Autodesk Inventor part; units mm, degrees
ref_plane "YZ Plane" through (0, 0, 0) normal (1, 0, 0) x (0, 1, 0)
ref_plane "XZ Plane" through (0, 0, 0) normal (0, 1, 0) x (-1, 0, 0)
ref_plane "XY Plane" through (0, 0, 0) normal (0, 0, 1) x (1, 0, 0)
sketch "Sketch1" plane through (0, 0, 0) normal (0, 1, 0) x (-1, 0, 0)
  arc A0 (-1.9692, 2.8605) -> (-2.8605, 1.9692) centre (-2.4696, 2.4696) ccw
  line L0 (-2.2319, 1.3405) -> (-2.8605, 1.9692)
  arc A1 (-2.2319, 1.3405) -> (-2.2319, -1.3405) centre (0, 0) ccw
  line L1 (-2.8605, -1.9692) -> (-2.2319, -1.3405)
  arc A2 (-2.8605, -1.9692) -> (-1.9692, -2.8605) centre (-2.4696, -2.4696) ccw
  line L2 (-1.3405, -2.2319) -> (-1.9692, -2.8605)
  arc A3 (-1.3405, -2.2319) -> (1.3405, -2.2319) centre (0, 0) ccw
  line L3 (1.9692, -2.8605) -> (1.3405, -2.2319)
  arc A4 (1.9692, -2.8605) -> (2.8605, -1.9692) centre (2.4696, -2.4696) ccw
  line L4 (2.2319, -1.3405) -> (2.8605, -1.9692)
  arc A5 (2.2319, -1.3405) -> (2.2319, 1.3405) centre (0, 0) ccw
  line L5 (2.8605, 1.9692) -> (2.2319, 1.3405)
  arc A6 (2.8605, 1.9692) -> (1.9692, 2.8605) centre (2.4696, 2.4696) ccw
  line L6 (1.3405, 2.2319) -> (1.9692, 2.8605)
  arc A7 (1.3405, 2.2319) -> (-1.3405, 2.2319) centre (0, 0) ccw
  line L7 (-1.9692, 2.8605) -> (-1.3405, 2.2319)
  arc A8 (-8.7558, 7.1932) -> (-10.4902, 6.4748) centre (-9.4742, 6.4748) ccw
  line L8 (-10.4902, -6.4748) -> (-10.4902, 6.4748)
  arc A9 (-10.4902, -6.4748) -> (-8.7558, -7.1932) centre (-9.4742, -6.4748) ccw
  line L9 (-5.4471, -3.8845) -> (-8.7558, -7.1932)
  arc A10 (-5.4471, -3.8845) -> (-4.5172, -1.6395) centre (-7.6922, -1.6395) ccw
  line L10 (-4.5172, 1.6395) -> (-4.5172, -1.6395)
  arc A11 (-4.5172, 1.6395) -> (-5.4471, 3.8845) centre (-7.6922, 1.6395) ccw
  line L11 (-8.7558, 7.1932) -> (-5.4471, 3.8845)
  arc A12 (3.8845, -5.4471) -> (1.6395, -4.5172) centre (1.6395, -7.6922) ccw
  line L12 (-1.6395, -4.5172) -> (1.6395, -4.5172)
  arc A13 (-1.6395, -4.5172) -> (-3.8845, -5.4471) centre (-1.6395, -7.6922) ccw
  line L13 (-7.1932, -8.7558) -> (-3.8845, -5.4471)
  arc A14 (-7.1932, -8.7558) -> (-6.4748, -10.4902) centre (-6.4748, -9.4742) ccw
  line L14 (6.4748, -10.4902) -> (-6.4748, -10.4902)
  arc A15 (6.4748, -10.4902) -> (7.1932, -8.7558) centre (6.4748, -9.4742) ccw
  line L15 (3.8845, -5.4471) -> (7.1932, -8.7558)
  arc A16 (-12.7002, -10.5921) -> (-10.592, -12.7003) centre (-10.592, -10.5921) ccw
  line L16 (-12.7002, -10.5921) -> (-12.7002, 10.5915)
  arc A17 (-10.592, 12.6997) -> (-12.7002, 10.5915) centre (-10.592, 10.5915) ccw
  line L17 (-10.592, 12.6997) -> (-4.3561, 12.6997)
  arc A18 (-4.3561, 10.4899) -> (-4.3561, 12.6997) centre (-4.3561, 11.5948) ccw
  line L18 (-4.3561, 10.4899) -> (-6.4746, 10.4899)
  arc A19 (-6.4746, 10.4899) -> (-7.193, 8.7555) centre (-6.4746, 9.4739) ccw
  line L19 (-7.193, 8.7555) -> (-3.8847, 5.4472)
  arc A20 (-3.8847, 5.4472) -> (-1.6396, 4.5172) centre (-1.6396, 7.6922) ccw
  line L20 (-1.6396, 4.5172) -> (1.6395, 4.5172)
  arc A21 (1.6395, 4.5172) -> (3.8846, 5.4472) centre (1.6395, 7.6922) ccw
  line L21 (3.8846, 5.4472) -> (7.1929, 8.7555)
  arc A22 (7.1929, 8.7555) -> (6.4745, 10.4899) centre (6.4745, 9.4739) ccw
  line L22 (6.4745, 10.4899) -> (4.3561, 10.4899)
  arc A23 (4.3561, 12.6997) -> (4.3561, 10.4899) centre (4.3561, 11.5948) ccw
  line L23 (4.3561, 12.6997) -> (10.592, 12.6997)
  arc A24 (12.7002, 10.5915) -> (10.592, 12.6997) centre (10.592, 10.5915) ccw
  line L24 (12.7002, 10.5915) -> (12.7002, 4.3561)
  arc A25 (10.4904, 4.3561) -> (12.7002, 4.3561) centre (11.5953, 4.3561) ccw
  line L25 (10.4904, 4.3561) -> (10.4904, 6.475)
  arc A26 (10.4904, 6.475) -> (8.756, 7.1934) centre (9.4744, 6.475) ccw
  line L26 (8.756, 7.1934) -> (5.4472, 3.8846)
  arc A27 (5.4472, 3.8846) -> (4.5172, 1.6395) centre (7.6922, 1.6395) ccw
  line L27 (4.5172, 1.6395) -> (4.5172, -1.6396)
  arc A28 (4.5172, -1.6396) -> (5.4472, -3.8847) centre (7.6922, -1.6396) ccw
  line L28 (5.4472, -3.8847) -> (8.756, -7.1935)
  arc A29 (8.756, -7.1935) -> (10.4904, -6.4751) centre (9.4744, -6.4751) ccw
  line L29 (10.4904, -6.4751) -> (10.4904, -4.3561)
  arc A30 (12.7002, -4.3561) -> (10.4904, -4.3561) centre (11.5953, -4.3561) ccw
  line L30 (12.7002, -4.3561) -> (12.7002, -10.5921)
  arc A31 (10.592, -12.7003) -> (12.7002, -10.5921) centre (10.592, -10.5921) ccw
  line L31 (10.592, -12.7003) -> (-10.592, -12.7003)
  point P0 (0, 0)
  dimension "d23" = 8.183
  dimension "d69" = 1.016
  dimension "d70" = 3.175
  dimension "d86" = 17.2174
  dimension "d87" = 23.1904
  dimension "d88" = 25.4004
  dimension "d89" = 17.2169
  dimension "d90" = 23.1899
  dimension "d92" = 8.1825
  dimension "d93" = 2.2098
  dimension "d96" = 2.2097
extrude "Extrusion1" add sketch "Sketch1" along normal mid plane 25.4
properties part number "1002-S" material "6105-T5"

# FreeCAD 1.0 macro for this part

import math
import FreeCAD as App
import Part
import Sketcher

V = App.Vector
Q = App.Units.Quantity

doc = App.newDocument("Part")
body = doc.addObject("PartDesign::Body", "Body")

sketch1 = body.newObject("Sketcher::SketchObject", "Sketch")
sketch1.AttachmentSupport = (doc.getObject("XZ_Plane"), [""])
sketch1.MapMode = "FlatFace"
sketch1.addGeometry([
    Part.LineSegment(V(12.7002, 10.5915, 0), V(12.7002, -10.5921, 0)),
    Part.ArcOfCircle(Part.Circle(V(10.592, -10.5921, 0), V(0, 0, 1), 2.1082), math.radians(-90), math.radians(0)),
    Part.LineSegment(V(10.592, -12.7003, 0), V(-10.592, -12.7003, 0)),
    Part.ArcOfCircle(Part.Circle(V(-10.592, -10.5921, 0), V(0, 0, 1), 2.1082), math.radians(180), math.radians(270)),
    Part.LineSegment(V(-12.7002, -10.5921, 0), V(-12.7002, -4.3561, 0)),
    Part.ArcOfCircle(Part.Circle(V(-11.5953, -4.3561, 0), V(0, 0, 1), 1.1049), math.radians(0), math.radians(180)),
    Part.LineSegment(V(-10.4904, -4.3561, 0), V(-10.4904, -6.4751, 0)),
    Part.ArcOfCircle(Part.Circle(V(-9.4744, -6.4751, 0), V(0, 0, 1), 1.015971), math.radians(180), math.radians(315)),
    Part.LineSegment(V(-8.756, -7.1935, 0), V(-5.4472, -3.8847, 0)),
    Part.ArcOfCircle(Part.Circle(V(-7.6922, -1.6396, 0), V(0, 0, 1), 3.175), math.radians(-45.001276), math.radians(0)),
    Part.LineSegment(V(-4.5172, -1.6396, 0), V(-4.5172, 1.6395, 0)),
    Part.ArcOfCircle(Part.Circle(V(-7.6922, 1.6395, 0), V(0, 0, 1), 3.17498), math.radians(0), math.radians(45.001276)),
    Part.LineSegment(V(-5.4472, 3.8846, 0), V(-8.756, 7.1934, 0)),
    Part.ArcOfCircle(Part.Circle(V(-9.4744, 6.475, 0), V(0, 0, 1), 1.016), math.radians(45), math.radians(180)),
    Part.LineSegment(V(-10.4904, 6.475, 0), V(-10.4904, 4.3561, 0)),
    Part.ArcOfCircle(Part.Circle(V(-11.5953, 4.3561, 0), V(0, 0, 1), 1.1049), math.radians(180), math.radians(360)),
    Part.LineSegment(V(-12.7002, 4.3561, 0), V(-12.7002, 10.5915, 0)),
    Part.ArcOfCircle(Part.Circle(V(-10.592, 10.5915, 0), V(0, 0, 1), 2.1082), math.radians(90), math.radians(180)),
    Part.LineSegment(V(-10.592, 12.6997, 0), V(-4.3561, 12.6997, 0)),
    Part.ArcOfCircle(Part.Circle(V(-4.3561, 11.5948, 0), V(0, 0, 1), 1.1049), math.radians(-90), math.radians(90)),
    Part.LineSegment(V(-4.3561, 10.4899, 0), V(-6.4745, 10.4899, 0)),
    Part.ArcOfCircle(Part.Circle(V(-6.4745, 9.4739, 0), V(0, 0, 1), 1.015971), math.radians(90), math.radians(225)),
    Part.LineSegment(V(-7.1929, 8.7555, 0), V(-3.8846, 5.4472, 0)),
    Part.ArcOfCircle(Part.Circle(V(-1.6395, 7.6922, 0), V(0, 0, 1), 3.175), math.radians(-135.001276), math.radians(-90)),
    Part.LineSegment(V(-1.6395, 4.5172, 0), V(1.6396, 4.5172, 0)),
    Part.ArcOfCircle(Part.Circle(V(1.6396, 7.6922, 0), V(0, 0, 1), 3.17498), math.radians(-90), math.radians(-44.998724)),
    Part.LineSegment(V(3.8847, 5.4472, 0), V(7.193, 8.7555, 0)),
    Part.ArcOfCircle(Part.Circle(V(6.4746, 9.4739, 0), V(0, 0, 1), 1.016), math.radians(-45), math.radians(90)),
    Part.LineSegment(V(6.4746, 10.4899, 0), V(4.3561, 10.4899, 0)),
    Part.ArcOfCircle(Part.Circle(V(4.3561, 11.5948, 0), V(0, 0, 1), 1.1049), math.radians(90), math.radians(270)),
    Part.LineSegment(V(4.3561, 12.6997, 0), V(10.592, 12.6997, 0)),
    Part.ArcOfCircle(Part.Circle(V(10.592, 10.5915, 0), V(0, 0, 1), 2.1082), math.radians(0), math.radians(90)),
    Part.ArcOfCircle(Part.Circle(V(-1.6395, -7.6922, 0), V(0, 0, 1), 3.17498), math.radians(90), math.radians(134.998724)),
    Part.LineSegment(V(-3.8845, -5.4471, 0), V(-7.1932, -8.7558, 0)),
    Part.ArcOfCircle(Part.Circle(V(-6.4748, -9.4742, 0), V(0, 0, 1), 1.016), math.radians(135), math.radians(270)),
    Part.LineSegment(V(-6.4748, -10.4902, 0), V(6.4748, -10.4902, 0)),
    Part.ArcOfCircle(Part.Circle(V(6.4748, -9.4742, 0), V(0, 0, 1), 1.015971), math.radians(-90), math.radians(45)),
    Part.LineSegment(V(7.1932, -8.7558, 0), V(3.8845, -5.4471, 0)),
    Part.ArcOfCircle(Part.Circle(V(1.6395, -7.6922, 0), V(0, 0, 1), 3.175), math.radians(45.001276), math.radians(90)),
    Part.LineSegment(V(1.6395, -4.5172, 0), V(-1.6395, -4.5172, 0)),
    Part.ArcOfCircle(Part.Circle(V(9.4742, 6.4748, 0), V(0, 0, 1), 1.015971), math.radians(0), math.radians(135)),
    Part.LineSegment(V(8.7558, 7.1932, 0), V(5.4471, 3.8845, 0)),
    Part.ArcOfCircle(Part.Circle(V(7.6922, 1.6395, 0), V(0, 0, 1), 3.175), math.radians(135.001276), math.radians(180)),
    Part.LineSegment(V(4.5172, 1.6395, 0), V(4.5172, -1.6395, 0)),
    Part.ArcOfCircle(Part.Circle(V(7.6922, -1.6395, 0), V(0, 0, 1), 3.17498), math.radians(180), math.radians(224.998724)),
    Part.LineSegment(V(5.4471, -3.8845, 0), V(8.7558, -7.1932, 0)),
    Part.ArcOfCircle(Part.Circle(V(9.4742, -6.4748, 0), V(0, 0, 1), 1.016), math.radians(-135), math.radians(0)),
    Part.LineSegment(V(10.4902, -6.4748, 0), V(10.4902, 6.4748, 0)),
    Part.ArcOfCircle(Part.Circle(V(2.4696, 2.4696, 0), V(0, 0, 1), 0.634983), math.radians(-52.003934), math.radians(142.003934)),
    Part.LineSegment(V(1.9692, 2.8605, 0), V(1.3405, 2.2319, 0)),
    Part.ArcOfCircle(Part.Circle(V(0, 0, 0), V(0, 0, 1), 2.60352), math.radians(59.010579), math.radians(120.989421)),
    Part.LineSegment(V(-1.3405, 2.2319, 0), V(-1.9692, 2.8605, 0)),
    Part.ArcOfCircle(Part.Circle(V(-2.4696, 2.4696, 0), V(0, 0, 1), 0.634983), math.radians(37.996066), math.radians(232.003934)),
    Part.LineSegment(V(-2.8605, 1.9692, 0), V(-2.2319, 1.3405, 0)),
    Part.ArcOfCircle(Part.Circle(V(0, 0, 0), V(0, 0, 1), 2.60352), math.radians(149.010579), math.radians(210.989421)),
    Part.LineSegment(V(-2.2319, -1.3405, 0), V(-2.8605, -1.9692, 0)),
    Part.ArcOfCircle(Part.Circle(V(-2.4696, -2.4696, 0), V(0, 0, 1), 0.634983), math.radians(127.996066), math.radians(322.003934)),
    Part.LineSegment(V(-1.9692, -2.8605, 0), V(-1.3405, -2.2319, 0)),
    Part.ArcOfCircle(Part.Circle(V(0, 0, 0), V(0, 0, 1), 2.60352), math.radians(-120.989421), math.radians(-59.010579)),
    Part.LineSegment(V(1.3405, -2.2319, 0), V(1.9692, -2.8605, 0)),
    Part.ArcOfCircle(Part.Circle(V(2.4696, -2.4696, 0), V(0, 0, 1), 0.634983), math.radians(-142.003934), math.radians(52.003934)),
    Part.LineSegment(V(2.8605, -1.9692, 0), V(2.2319, -1.3405, 0)),
    Part.ArcOfCircle(Part.Circle(V(0, 0, 0), V(0, 0, 1), 2.60352), math.radians(-30.989421), math.radians(30.989421)),
    Part.LineSegment(V(2.2319, 1.3405, 0), V(2.8605, 1.9692, 0)),
], False)
sketch1.addConstraint([
    Sketcher.Constraint("Tangent", 0, 2, 1, 2),
    Sketcher.Constraint("Tangent", 1, 1, 2, 1),
    Sketcher.Constraint("Tangent", 2, 2, 3, 2),
    Sketcher.Constraint("Tangent", 3, 1, 4, 1),
    Sketcher.Constraint("Tangent", 4, 2, 5, 2),
    Sketcher.Constraint("Tangent", 5, 1, 6, 1),
    Sketcher.Constraint("Tangent", 6, 2, 7, 1),
    Sketcher.Constraint("Tangent", 7, 2, 8, 1),
    Sketcher.Constraint("Tangent", 8, 2, 9, 1),
    Sketcher.Constraint("Tangent", 9, 2, 10, 1),
    Sketcher.Constraint("Tangent", 10, 2, 11, 1),
    Sketcher.Constraint("Tangent", 11, 2, 12, 1),
    Sketcher.Constraint("Tangent", 12, 2, 13, 1),
    Sketcher.Constraint("Tangent", 13, 2, 14, 1),
    Sketcher.Constraint("Tangent", 14, 2, 15, 2),
    Sketcher.Constraint("Tangent", 15, 1, 16, 1),
    Sketcher.Constraint("Tangent", 16, 2, 17, 2),
    Sketcher.Constraint("Tangent", 17, 1, 18, 1),
    Sketcher.Constraint("Tangent", 18, 2, 19, 2),
    Sketcher.Constraint("Tangent", 19, 1, 20, 1),
    Sketcher.Constraint("Tangent", 20, 2, 21, 1),
    Sketcher.Constraint("Tangent", 21, 2, 22, 1),
    Sketcher.Constraint("Tangent", 22, 2, 23, 1),
    Sketcher.Constraint("Tangent", 23, 2, 24, 1),
    Sketcher.Constraint("Tangent", 24, 2, 25, 1),
    Sketcher.Constraint("Tangent", 25, 2, 26, 1),
    Sketcher.Constraint("Tangent", 26, 2, 27, 1),
    Sketcher.Constraint("Tangent", 27, 2, 28, 1),
    Sketcher.Constraint("Tangent", 28, 2, 29, 2),
    Sketcher.Constraint("Tangent", 29, 1, 30, 1),
    Sketcher.Constraint("Tangent", 30, 2, 31, 2),
    Sketcher.Constraint("Tangent", 31, 1, 0, 1),
    Sketcher.Constraint("Tangent", 32, 2, 33, 1),
    Sketcher.Constraint("Tangent", 33, 2, 34, 1),
    Sketcher.Constraint("Tangent", 34, 2, 35, 1),
    Sketcher.Constraint("Tangent", 35, 2, 36, 1),
    Sketcher.Constraint("Tangent", 36, 2, 37, 1),
    Sketcher.Constraint("Tangent", 37, 2, 38, 1),
    Sketcher.Constraint("Tangent", 38, 2, 39, 1),
    Sketcher.Constraint("Tangent", 39, 2, 32, 1),
    Sketcher.Constraint("Tangent", 40, 2, 41, 1),
    Sketcher.Constraint("Tangent", 41, 2, 42, 1),
    Sketcher.Constraint("Tangent", 42, 2, 43, 1),
    Sketcher.Constraint("Tangent", 43, 2, 44, 1),
    Sketcher.Constraint("Tangent", 44, 2, 45, 1),
    Sketcher.Constraint("Tangent", 45, 2, 46, 1),
    Sketcher.Constraint("Tangent", 46, 2, 47, 1),
    Sketcher.Constraint("Tangent", 47, 2, 40, 1),
    Sketcher.Constraint("Coincident", 48, 2, 49, 1),
    Sketcher.Constraint("Coincident", 49, 2, 50, 1),
    Sketcher.Constraint("Coincident", 50, 2, 51, 1),
    Sketcher.Constraint("Coincident", 51, 2, 52, 1),
    Sketcher.Constraint("Coincident", 52, 2, 53, 1),
    Sketcher.Constraint("Coincident", 53, 2, 54, 1),
    Sketcher.Constraint("Coincident", 54, 2, 55, 1),
    Sketcher.Constraint("Coincident", 55, 2, 56, 1),
    Sketcher.Constraint("Coincident", 56, 2, 57, 1),
    Sketcher.Constraint("Coincident", 57, 2, 58, 1),
    Sketcher.Constraint("Coincident", 58, 2, 59, 1),
    Sketcher.Constraint("Coincident", 59, 2, 60, 1),
    Sketcher.Constraint("Coincident", 60, 2, 61, 1),
    Sketcher.Constraint("Coincident", 61, 2, 62, 1),
    Sketcher.Constraint("Coincident", 62, 2, 63, 1),
    Sketcher.Constraint("Coincident", 63, 2, 48, 1),
    Sketcher.Constraint("Vertical", 0),
    Sketcher.Constraint("Horizontal", 2),
    Sketcher.Constraint("Vertical", 4),
    Sketcher.Constraint("Vertical", 6),
    Sketcher.Constraint("Vertical", 10),
    Sketcher.Constraint("Vertical", 14),
    Sketcher.Constraint("Vertical", 16),
    Sketcher.Constraint("Horizontal", 18),
    Sketcher.Constraint("Horizontal", 20),
    Sketcher.Constraint("Horizontal", 24),
    Sketcher.Constraint("Horizontal", 28),
    Sketcher.Constraint("Horizontal", 30),
    Sketcher.Constraint("Horizontal", 35),
    Sketcher.Constraint("Horizontal", 39),
    Sketcher.Constraint("Vertical", 43),
    Sketcher.Constraint("Vertical", 47),
    Sketcher.Constraint("Coincident", 50, 3, -1, 1),
    Sketcher.Constraint("Coincident", 54, 3, -1, 1),
    Sketcher.Constraint("Coincident", 58, 3, -1, 1),
    Sketcher.Constraint("Coincident", 62, 3, -1, 1),
    Sketcher.Constraint("Equal", 1, 3),
    Sketcher.Constraint("Equal", 9, 11),
    Sketcher.Constraint("Equal", 7, 13),
    Sketcher.Constraint("Equal", 5, 15),
    Sketcher.Constraint("Equal", 3, 17),
    Sketcher.Constraint("Equal", 15, 19),
    Sketcher.Constraint("Equal", 13, 21),
    Sketcher.Constraint("Equal", 11, 23),
    Sketcher.Constraint("Equal", 23, 25),
    Sketcher.Constraint("Equal", 21, 27),
    Sketcher.Constraint("Equal", 19, 29),
    Sketcher.Constraint("Equal", 17, 31),
    Sketcher.Constraint("Equal", 25, 32),
    Sketcher.Constraint("Equal", 27, 34),
    Sketcher.Constraint("Equal", 34, 36),
    Sketcher.Constraint("Equal", 32, 38),
    Sketcher.Constraint("Equal", 36, 40),
    Sketcher.Constraint("Equal", 38, 42),
    Sketcher.Constraint("Equal", 42, 44),
    Sketcher.Constraint("Equal", 40, 46),
    Sketcher.Constraint("Equal", 48, 52),
    Sketcher.Constraint("Equal", 50, 54),
    Sketcher.Constraint("Equal", 52, 56),
    Sketcher.Constraint("Equal", 54, 58),
    Sketcher.Constraint("Equal", 56, 60),
    Sketcher.Constraint("Equal", 58, 62),
    Sketcher.Constraint("Symmetric", 25, 3, 32, 3, -1, 1),
    Sketcher.Constraint("Symmetric", 27, 3, 34, 3, -1, 1),
    Sketcher.Constraint("Symmetric", 7, 3, 40, 3, -1, 1),
    Sketcher.Constraint("Symmetric", 9, 3, 42, 3, -1, 1),
    Sketcher.Constraint("Symmetric", 13, 3, 46, 3, -1, 1),
    Sketcher.Constraint("Symmetric", 48, 3, 56, 3, -1, 1),
    Sketcher.Constraint("Symmetric", 52, 3, 60, 3, -1, 1),
    Sketcher.Constraint("Symmetric", 22, 2, 37, 2, -1, 1),
    Sketcher.Constraint("Symmetric", 21, 3, 27, 3, -2),
    Sketcher.Constraint("Symmetric", 48, 3, 52, 3, -2),
    Sketcher.Constraint("Symmetric", 12, 2, 40, 2, -2),
    Sketcher.Constraint("Perpendicular", 8, 12),
    Sketcher.Constraint("Parallel", 12, 22),
    Sketcher.Constraint("Perpendicular", 22, 26),
    Sketcher.Constraint("Perpendicular", 41, 45),
    Sketcher.Constraint("Perpendicular", 45, 49),
    Sketcher.Constraint("Perpendicular", 49, 51),
    Sketcher.Constraint("Parallel", 51, 53),
    Sketcher.Constraint("Perpendicular", 53, 55),
    Sketcher.Constraint("Parallel", 55, 57),
    Sketcher.Constraint("Perpendicular", 57, 59),
    Sketcher.Constraint("Parallel", 59, 61),
    Sketcher.Constraint("Perpendicular", 61, 63),
    Sketcher.Constraint("Horizontal", 49, 2, 50, 2),
    Sketcher.Constraint("Horizontal", 57, 2, 58, 2),
    Sketcher.Constraint("Horizontal", 55, 2, 60, 2),
    Sketcher.Constraint("Horizontal", 53, 2, 62, 2),
    Sketcher.Constraint("Vertical", 53, 2, 54, 2),
    Sketcher.Constraint("Vertical", 51, 2, 56, 2),
    Sketcher.Constraint("Equal", 20, 28),
    Sketcher.Constraint("Equal", 18, 30),
    Sketcher.Constraint("Equal", 30, 4),
    Sketcher.Constraint("Equal", 39, 10),
    Sketcher.Constraint("Equal", 6, 14),
    Sketcher.Constraint("Equal", 35, 47),
    Sketcher.Constraint("Equal", 51, 53),
    Sketcher.Constraint("Radius", 7, Q("0.04 in")),
    Sketcher.Constraint("Radius", 9, Q("0.125 in")),
    Sketcher.Constraint("Radius", 5, Q("0.0435 in")),
    Sketcher.Constraint("Radius", 1, Q("0.083 in")),
    Sketcher.Constraint("Radius", 48, Q("0.025 in")),
    Sketcher.Constraint("DistanceX", -1, 1, 0, 2, Q("0.5 in")),
    Sketcher.Constraint("DistanceY", 1, 1, -1, 1, Q("0.5 in")),
    Sketcher.Constraint("DistanceY", -1, 1, 17, 1, Q("0.5 in")),
    Sketcher.Constraint("Radius", 50, Q("0.1025 in")),
    Sketcher.Constraint("Distance", 49, Q("0.035 in")),
    Sketcher.Constraint("DistanceX", 18, 1, 18, 2, Q("0.2455 in")),
    Sketcher.Constraint("DistanceX", 20, 2, 20, 1, Q("0.0834 in")),
    Sketcher.Constraint("DistanceX", 24, 1, 24, 2, Q("0.1291 in")),
    Sketcher.Constraint("DistanceX", -1, 1, 48, 3, Q("2.4696 mm")),
    Sketcher.Constraint("DistanceY", -1, 1, 48, 3, Q("2.4696 mm")),
])
pad1 = body.newObject("PartDesign::Pad", "Pad")
pad1.Profile = sketch1
pad1.Length = Q("1 in")
pad1.Midplane = True

doc.recompute()
